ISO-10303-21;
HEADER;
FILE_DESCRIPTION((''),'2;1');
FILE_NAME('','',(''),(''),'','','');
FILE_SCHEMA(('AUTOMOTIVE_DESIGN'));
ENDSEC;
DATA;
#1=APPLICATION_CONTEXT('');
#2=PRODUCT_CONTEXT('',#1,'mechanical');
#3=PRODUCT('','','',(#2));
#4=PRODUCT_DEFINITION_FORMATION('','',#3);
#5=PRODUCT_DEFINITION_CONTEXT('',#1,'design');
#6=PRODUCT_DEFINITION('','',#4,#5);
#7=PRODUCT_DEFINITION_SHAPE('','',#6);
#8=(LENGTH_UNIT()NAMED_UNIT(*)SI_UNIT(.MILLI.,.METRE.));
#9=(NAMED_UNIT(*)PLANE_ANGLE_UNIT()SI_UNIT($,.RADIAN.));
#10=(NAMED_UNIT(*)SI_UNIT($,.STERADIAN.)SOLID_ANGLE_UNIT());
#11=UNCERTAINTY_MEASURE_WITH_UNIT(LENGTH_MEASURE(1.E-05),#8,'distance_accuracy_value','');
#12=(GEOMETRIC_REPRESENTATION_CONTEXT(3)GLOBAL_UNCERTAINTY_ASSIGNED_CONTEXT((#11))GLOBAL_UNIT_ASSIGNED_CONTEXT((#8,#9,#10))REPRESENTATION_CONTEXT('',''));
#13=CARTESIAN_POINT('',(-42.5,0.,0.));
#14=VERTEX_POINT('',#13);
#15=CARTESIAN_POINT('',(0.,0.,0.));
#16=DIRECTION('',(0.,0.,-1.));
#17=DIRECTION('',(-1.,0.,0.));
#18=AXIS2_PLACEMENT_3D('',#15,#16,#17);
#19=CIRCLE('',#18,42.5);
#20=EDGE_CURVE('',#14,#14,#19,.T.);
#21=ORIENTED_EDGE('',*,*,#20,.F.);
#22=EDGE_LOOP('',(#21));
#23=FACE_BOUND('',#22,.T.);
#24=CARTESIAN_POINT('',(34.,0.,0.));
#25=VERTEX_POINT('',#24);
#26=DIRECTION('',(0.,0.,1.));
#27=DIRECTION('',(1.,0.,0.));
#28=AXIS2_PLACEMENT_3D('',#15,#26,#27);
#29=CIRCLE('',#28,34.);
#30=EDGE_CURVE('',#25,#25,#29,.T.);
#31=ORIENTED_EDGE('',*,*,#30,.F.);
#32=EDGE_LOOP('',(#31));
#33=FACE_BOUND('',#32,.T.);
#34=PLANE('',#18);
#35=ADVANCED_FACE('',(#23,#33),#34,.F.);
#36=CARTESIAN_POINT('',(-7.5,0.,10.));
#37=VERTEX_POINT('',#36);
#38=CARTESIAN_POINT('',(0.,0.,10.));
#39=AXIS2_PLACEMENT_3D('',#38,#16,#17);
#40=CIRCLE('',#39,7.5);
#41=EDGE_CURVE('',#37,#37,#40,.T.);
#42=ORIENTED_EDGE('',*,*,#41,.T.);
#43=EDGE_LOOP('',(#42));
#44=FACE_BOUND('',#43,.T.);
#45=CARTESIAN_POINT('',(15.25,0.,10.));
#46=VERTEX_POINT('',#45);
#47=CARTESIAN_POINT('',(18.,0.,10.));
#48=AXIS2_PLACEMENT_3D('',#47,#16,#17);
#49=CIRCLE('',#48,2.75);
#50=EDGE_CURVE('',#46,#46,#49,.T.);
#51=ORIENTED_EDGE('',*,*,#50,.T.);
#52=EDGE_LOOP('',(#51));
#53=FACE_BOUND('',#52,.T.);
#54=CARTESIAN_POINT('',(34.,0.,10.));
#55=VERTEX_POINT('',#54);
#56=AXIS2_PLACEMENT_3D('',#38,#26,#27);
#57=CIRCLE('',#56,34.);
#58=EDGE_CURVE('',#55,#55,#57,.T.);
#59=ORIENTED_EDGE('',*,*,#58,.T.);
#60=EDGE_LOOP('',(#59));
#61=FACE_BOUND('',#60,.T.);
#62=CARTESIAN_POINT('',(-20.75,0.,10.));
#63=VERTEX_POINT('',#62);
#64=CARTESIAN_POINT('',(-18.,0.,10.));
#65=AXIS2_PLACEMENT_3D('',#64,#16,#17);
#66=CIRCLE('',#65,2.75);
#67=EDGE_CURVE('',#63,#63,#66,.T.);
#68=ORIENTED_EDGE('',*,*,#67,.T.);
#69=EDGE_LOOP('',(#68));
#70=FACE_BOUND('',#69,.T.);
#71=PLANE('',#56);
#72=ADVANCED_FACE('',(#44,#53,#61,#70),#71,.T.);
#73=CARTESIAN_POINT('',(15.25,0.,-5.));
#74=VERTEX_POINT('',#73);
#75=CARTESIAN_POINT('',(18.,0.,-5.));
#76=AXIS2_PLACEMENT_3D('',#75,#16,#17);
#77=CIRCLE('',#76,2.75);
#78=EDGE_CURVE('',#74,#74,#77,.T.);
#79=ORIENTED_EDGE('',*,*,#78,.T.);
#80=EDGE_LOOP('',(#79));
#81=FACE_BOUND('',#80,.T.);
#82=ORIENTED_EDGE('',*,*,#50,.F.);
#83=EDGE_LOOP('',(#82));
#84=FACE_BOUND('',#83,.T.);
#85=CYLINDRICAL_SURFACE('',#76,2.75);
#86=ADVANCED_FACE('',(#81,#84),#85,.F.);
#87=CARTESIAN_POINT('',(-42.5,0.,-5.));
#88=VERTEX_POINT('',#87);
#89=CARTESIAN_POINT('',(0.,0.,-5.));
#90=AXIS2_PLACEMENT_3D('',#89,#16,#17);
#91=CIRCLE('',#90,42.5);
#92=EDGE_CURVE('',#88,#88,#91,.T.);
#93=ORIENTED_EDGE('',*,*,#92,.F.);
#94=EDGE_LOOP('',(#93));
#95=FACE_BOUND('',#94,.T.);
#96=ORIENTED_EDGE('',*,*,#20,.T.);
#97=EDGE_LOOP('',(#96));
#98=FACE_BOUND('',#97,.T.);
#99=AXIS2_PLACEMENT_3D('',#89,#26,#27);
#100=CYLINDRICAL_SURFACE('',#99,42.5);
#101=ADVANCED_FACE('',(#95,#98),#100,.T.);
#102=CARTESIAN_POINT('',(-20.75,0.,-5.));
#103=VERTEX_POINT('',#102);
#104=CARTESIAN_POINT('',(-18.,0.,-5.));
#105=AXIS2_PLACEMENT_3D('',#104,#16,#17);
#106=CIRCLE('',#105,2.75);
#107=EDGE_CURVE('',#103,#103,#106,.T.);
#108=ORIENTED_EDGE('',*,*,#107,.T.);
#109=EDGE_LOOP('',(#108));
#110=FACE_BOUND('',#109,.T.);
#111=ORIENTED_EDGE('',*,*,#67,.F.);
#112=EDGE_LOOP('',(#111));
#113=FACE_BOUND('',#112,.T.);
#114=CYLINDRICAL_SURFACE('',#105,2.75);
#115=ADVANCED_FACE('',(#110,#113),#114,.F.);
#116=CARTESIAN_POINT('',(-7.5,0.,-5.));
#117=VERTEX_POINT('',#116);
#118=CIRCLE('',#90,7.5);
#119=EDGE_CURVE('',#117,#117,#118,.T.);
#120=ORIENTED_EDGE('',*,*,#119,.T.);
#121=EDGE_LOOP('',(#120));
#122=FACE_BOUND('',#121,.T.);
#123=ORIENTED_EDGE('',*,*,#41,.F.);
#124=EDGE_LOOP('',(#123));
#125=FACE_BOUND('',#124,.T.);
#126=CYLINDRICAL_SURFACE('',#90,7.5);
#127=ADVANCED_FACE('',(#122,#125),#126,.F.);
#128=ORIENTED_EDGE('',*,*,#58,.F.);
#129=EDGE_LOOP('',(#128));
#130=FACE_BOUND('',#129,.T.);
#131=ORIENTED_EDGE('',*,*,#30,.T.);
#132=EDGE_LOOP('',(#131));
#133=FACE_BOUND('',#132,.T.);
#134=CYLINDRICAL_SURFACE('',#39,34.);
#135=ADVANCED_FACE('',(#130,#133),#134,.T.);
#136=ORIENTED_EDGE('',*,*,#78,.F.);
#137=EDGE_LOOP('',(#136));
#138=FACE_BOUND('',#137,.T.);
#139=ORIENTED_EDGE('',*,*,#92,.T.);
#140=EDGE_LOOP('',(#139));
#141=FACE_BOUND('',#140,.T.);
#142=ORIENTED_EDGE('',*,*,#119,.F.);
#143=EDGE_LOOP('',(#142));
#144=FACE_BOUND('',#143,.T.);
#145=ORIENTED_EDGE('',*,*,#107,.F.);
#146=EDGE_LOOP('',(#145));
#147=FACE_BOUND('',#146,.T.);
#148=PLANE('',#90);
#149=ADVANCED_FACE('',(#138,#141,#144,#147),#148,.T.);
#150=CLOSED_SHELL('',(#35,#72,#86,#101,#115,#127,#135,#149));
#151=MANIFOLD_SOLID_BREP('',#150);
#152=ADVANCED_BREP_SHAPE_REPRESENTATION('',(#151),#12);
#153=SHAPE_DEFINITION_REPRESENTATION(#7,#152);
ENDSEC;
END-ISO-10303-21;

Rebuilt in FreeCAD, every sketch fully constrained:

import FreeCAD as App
import Part
import Sketcher

doc = App.newDocument("Part")
body = doc.addObject("PartDesign::Body", "Body")

# Sketch on XY plane
sketch1 = body.newObject("Sketcher::SketchObject", "Sketch")
sketch1.AttachmentSupport = (doc.getObject("XY_Plane"), [""])
sketch1.MapMode = "FlatFace"
sketch1.addGeometry(Part.Circle(App.Vector(0, 0, 0), App.Vector(0, 0, 1), 34), False)
sketch1.addConstraint([
    Sketcher.Constraint("Coincident", 0, 3, -1, 1),
    Sketcher.Constraint("Diameter", 0, 68.0),
])
pad1 = body.newObject("PartDesign::Pad", "Pad")
pad1.Profile = sketch1
pad1.Length = 10

# Sketch on XY plane
sketch2 = body.newObject("Sketcher::SketchObject", "Sketch001")
sketch2.AttachmentSupport = (doc.getObject("XY_Plane"), [""])
sketch2.MapMode = "FlatFace"
sketch2.addGeometry(Part.Circle(App.Vector(0, 0, 0), App.Vector(0, 0, 1), 42), False)
sketch2.addConstraint([
    Sketcher.Constraint("Coincident", 0, 3, -1, 1),
    Sketcher.Constraint("Diameter", 0, 85.0),
])
pad2 = body.newObject("PartDesign::Pad", "Pad001")
pad2.Profile = sketch2
pad2.Length = 5
pad2.Reversed = True

# Sketch on XY plane
sketch3 = body.newObject("Sketcher::SketchObject", "Sketch002")
sketch3.AttachmentSupport = (doc.getObject("XY_Plane"), [""])
sketch3.MapMode = "FlatFace"
sketch3.AttachmentOffset = App.Placement(App.Vector(0, 0, -5), App.Rotation())
sketch3.addGeometry(Part.Circle(App.Vector(0, 0, 0), App.Vector(0, 0, 1), 8), False)
sketch3.addConstraint([
    Sketcher.Constraint("Coincident", 0, 3, -1, 1),
    Sketcher.Constraint("Diameter", 0, 15.0),
])
doc.recompute()
hole = body.newObject("PartDesign::Hole", "Hole")
hole.Profile = sketch3
hole.ThreadType = "None"
hole.Diameter = 15
hole.DepthType = "ThroughAll"
hole.Reversed = True

# Sketch on XY plane
sketch4 = body.newObject("Sketcher::SketchObject", "Sketch003")
sketch4.AttachmentSupport = (doc.getObject("XY_Plane"), [""])
sketch4.MapMode = "FlatFace"
sketch4.AttachmentOffset = App.Placement(App.Vector(0, 0, -5), App.Rotation())
sketch4.addGeometry([
    Part.Circle(App.Vector(-18, 0, 0), App.Vector(0, 0, 1), 2.8),
    Part.Circle(App.Vector(18, 0, 0), App.Vector(0, 0, 1), 2.8),
], False)
sketch4.addConstraint([
    Sketcher.Constraint("Equal", 0, 1),
    Sketcher.Constraint("Symmetric", 0, 3, 1, 3, -1, 1),
    Sketcher.Constraint("PointOnObject", 0, 3, -1),
    Sketcher.Constraint("Diameter", 0, 5.5),
    Sketcher.Constraint("DistanceX", 0, 3, -1, 1, 18.0),
])
doc.recompute()
hole2 = body.newObject("PartDesign::Hole", "Hole001")
hole2.Profile = sketch4
hole2.ThreadType = "None"
hole2.Diameter = 5.5
hole2.DepthType = "ThroughAll"
hole2.Reversed = True

doc.recompute()
